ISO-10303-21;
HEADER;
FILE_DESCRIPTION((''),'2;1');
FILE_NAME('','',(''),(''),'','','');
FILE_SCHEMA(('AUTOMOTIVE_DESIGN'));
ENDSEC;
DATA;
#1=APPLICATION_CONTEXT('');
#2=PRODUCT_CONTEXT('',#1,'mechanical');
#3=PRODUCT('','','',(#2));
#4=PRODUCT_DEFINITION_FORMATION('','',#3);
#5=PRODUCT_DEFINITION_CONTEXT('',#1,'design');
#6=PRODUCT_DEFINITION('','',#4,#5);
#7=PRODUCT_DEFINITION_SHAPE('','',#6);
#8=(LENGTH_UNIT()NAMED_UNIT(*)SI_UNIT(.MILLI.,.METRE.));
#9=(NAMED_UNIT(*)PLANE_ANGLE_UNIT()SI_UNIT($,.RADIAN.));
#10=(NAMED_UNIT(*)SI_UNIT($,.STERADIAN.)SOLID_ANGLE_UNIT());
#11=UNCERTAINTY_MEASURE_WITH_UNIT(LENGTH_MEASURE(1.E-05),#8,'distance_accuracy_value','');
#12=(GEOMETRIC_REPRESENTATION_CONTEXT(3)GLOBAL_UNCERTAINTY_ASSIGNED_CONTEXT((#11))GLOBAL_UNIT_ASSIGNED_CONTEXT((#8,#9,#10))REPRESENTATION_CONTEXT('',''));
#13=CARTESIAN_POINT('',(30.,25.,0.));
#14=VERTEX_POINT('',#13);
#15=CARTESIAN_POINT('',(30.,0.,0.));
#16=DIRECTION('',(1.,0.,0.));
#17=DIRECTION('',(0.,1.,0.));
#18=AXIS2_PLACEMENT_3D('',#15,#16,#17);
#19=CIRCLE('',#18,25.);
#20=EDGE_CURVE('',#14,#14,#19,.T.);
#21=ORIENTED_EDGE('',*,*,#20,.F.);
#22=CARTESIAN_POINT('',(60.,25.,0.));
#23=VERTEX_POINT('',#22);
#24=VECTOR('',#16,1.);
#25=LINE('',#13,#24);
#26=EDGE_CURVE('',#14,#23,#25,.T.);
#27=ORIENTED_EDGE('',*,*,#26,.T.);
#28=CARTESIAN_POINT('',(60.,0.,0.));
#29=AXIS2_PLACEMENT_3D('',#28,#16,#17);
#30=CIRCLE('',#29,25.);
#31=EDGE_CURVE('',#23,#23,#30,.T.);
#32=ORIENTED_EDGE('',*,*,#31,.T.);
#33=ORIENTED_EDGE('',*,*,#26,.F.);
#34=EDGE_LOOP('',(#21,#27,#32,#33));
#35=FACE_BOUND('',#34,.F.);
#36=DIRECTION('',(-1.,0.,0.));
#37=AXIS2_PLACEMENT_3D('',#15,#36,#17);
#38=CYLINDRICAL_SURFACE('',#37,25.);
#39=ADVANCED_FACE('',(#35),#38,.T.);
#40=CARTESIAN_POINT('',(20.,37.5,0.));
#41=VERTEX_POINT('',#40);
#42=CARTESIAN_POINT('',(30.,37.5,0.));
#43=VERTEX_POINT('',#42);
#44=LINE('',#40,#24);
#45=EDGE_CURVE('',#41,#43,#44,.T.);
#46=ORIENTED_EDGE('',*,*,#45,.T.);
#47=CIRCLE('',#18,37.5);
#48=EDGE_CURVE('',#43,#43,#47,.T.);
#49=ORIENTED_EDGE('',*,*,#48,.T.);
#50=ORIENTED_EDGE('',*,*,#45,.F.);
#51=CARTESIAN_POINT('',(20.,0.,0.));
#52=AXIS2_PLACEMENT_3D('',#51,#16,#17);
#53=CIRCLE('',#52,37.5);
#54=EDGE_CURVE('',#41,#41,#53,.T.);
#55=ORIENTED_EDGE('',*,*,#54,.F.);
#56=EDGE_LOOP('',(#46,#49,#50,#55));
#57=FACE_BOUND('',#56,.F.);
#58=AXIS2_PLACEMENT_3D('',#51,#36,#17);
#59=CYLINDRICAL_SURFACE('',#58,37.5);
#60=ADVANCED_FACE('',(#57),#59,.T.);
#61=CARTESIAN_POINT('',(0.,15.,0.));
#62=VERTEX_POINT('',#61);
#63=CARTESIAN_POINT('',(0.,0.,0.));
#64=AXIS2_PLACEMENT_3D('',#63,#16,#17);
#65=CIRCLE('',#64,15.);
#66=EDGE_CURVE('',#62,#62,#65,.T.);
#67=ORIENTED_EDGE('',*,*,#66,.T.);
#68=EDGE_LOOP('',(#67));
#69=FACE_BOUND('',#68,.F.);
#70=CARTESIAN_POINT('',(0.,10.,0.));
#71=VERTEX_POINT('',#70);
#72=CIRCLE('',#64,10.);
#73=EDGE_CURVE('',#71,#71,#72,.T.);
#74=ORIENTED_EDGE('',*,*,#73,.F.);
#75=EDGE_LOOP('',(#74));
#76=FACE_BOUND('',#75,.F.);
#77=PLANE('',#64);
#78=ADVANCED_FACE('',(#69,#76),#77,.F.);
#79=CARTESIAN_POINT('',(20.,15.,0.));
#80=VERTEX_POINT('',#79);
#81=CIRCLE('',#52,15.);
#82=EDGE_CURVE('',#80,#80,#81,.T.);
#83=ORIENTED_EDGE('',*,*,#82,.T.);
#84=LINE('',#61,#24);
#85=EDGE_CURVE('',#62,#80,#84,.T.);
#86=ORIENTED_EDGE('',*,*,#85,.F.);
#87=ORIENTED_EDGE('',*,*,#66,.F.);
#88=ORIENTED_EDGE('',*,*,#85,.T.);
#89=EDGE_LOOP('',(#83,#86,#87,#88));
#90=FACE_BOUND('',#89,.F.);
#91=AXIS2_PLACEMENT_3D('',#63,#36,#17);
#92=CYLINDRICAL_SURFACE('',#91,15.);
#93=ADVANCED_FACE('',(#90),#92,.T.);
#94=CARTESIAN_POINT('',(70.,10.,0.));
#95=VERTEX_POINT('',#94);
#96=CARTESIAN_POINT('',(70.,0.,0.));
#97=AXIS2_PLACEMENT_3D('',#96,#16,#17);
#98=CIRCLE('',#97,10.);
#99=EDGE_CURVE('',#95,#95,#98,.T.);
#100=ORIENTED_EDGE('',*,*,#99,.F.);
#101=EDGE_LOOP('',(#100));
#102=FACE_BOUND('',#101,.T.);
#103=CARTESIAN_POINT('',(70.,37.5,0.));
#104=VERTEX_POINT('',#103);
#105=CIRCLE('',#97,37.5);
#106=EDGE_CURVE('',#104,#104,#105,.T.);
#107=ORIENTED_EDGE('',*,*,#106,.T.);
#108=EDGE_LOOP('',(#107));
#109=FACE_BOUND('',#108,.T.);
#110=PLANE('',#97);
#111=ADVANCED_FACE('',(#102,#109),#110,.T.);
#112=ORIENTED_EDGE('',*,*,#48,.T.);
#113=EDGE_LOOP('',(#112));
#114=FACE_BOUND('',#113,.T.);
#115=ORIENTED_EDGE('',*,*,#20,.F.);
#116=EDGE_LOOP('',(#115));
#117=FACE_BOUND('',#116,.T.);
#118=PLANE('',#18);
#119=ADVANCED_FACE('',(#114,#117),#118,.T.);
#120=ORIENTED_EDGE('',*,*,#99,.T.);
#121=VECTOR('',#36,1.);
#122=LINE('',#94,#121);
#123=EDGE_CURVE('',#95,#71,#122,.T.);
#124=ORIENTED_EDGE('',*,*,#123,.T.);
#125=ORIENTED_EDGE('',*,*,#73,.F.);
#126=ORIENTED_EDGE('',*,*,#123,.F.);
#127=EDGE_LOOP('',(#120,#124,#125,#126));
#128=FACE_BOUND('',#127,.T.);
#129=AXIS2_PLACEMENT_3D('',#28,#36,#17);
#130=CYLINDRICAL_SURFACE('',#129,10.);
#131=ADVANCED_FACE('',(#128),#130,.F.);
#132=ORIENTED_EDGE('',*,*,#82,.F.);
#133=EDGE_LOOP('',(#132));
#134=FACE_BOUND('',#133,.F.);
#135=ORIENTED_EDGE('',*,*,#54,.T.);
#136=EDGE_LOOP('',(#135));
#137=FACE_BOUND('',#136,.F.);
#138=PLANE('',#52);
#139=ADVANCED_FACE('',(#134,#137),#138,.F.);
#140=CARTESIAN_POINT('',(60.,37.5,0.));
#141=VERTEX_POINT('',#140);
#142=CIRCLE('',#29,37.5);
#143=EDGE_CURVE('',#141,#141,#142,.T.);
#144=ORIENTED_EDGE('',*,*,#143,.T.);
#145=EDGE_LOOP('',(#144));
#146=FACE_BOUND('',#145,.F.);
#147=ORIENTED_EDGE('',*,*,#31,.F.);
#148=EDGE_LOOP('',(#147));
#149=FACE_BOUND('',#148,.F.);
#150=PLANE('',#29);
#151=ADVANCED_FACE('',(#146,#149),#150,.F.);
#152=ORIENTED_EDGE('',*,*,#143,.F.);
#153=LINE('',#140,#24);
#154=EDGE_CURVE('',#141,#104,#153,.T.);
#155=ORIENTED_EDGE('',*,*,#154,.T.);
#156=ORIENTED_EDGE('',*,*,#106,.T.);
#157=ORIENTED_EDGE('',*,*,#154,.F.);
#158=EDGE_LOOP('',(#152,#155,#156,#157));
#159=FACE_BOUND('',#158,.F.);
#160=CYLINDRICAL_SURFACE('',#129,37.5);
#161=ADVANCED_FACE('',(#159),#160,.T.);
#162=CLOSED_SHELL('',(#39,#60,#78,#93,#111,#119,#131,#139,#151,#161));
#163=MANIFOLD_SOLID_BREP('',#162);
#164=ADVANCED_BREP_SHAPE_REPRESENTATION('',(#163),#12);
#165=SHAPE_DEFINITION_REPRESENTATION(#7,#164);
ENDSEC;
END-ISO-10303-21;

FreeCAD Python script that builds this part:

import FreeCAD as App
import Part
import Sketcher
from FreeCAD import Vector
Q = App.Units.Quantity

doc = App.newDocument("Part")
body = doc.addObject("PartDesign::Body", "Body")

# Sketch on YZ plane
sketch1 = body.newObject("Sketcher::SketchObject", "Sketch")
sketch1.AttachmentSupport = (doc.getObject("YZ_Plane"), [""])
sketch1.MapMode = "FlatFace"
sketch1.addGeometry(Part.Circle(Vector(0, 0, 0), Vector(0, 0, 1), 15), False)
sketch1.addGeometry(Part.Circle(Vector(0, 0, 0), Vector(0, 0, 1), 10), False)
sketch1.addConstraint(Sketcher.Constraint("Coincident", 0, 3, -1, 1))
sketch1.addConstraint(Sketcher.Constraint("Coincident", 1, 3, -1, 1))
sketch1.addConstraint(Sketcher.Constraint("Diameter", 0, Q("30 mm")))
sketch1.addConstraint(Sketcher.Constraint("Diameter", 1, Q("20 mm")))
pad1 = body.newObject("PartDesign::Pad", "Pad")
pad1.Profile = sketch1
pad1.Length = 20

# Sketch on YZ plane
sketch2 = body.newObject("Sketcher::SketchObject", "Sketch001")
sketch2.AttachmentSupport = (doc.getObject("YZ_Plane"), [""])
sketch2.MapMode = "FlatFace"
sketch2.AttachmentOffset = App.Placement(Vector(0, 0, 20), App.Rotation())
sketch2.addGeometry(Part.Circle(Vector(0, 0, 0), Vector(0, 0, 1), 37.5), False)
sketch2.addGeometry(Part.Circle(Vector(0, 0, 0), Vector(0, 0, 1), 10), False)
sketch2.addConstraint(Sketcher.Constraint("Coincident", 0, 3, -1, 1))
sketch2.addConstraint(Sketcher.Constraint("Coincident", 1, 3, -1, 1))
sketch2.addConstraint(Sketcher.Constraint("Diameter", 0, Q("75 mm")))
sketch2.addConstraint(Sketcher.Constraint("Diameter", 1, Q("20 mm")))
pad2 = body.newObject("PartDesign::Pad", "Pad001")
pad2.Profile = sketch2
pad2.Length = 10

# Sketch on YZ plane
sketch3 = body.newObject("Sketcher::SketchObject", "Sketch002")
sketch3.AttachmentSupport = (doc.getObject("YZ_Plane"), [""])
sketch3.MapMode = "FlatFace"
sketch3.AttachmentOffset = App.Placement(Vector(0, 0, 30), App.Rotation())
sketch3.addGeometry(Part.Circle(Vector(0, 0, 0), Vector(0, 0, 1), 25), False)
sketch3.addGeometry(Part.Circle(Vector(0, 0, 0), Vector(0, 0, 1), 10), False)
sketch3.addConstraint(Sketcher.Constraint("Coincident", 0, 3, -1, 1))
sketch3.addConstraint(Sketcher.Constraint("Coincident", 1, 3, -1, 1))
sketch3.addConstraint(Sketcher.Constraint("Diameter", 0, Q("50 mm")))
sketch3.addConstraint(Sketcher.Constraint("Diameter", 1, Q("20 mm")))
pad3 = body.newObject("PartDesign::Pad", "Pad002")
pad3.Profile = sketch3
pad3.Length = 30

# Sketch on YZ plane
sketch4 = body.newObject("Sketcher::SketchObject", "Sketch003")
sketch4.AttachmentSupport = (doc.getObject("YZ_Plane"), [""])
sketch4.MapMode = "FlatFace"
sketch4.AttachmentOffset = App.Placement(Vector(0, 0, 60), App.Rotation())
sketch4.addGeometry(Part.Circle(Vector(0, 0, 0), Vector(0, 0, 1), 37.5), False)
sketch4.addGeometry(Part.Circle(Vector(0, 0, 0), Vector(0, 0, 1), 10), False)
sketch4.addConstraint(Sketcher.Constraint("Coincident", 0, 3, -1, 1))
sketch4.addConstraint(Sketcher.Constraint("Coincident", 1, 3, -1, 1))
sketch4.addConstraint(Sketcher.Constraint("Diameter", 0, Q("75 mm")))
sketch4.addConstraint(Sketcher.Constraint("Diameter", 1, Q("20 mm")))
pad4 = body.newObject("PartDesign::Pad", "Pad003")
pad4.Profile = sketch4
pad4.Length = 10

doc.recompute()
